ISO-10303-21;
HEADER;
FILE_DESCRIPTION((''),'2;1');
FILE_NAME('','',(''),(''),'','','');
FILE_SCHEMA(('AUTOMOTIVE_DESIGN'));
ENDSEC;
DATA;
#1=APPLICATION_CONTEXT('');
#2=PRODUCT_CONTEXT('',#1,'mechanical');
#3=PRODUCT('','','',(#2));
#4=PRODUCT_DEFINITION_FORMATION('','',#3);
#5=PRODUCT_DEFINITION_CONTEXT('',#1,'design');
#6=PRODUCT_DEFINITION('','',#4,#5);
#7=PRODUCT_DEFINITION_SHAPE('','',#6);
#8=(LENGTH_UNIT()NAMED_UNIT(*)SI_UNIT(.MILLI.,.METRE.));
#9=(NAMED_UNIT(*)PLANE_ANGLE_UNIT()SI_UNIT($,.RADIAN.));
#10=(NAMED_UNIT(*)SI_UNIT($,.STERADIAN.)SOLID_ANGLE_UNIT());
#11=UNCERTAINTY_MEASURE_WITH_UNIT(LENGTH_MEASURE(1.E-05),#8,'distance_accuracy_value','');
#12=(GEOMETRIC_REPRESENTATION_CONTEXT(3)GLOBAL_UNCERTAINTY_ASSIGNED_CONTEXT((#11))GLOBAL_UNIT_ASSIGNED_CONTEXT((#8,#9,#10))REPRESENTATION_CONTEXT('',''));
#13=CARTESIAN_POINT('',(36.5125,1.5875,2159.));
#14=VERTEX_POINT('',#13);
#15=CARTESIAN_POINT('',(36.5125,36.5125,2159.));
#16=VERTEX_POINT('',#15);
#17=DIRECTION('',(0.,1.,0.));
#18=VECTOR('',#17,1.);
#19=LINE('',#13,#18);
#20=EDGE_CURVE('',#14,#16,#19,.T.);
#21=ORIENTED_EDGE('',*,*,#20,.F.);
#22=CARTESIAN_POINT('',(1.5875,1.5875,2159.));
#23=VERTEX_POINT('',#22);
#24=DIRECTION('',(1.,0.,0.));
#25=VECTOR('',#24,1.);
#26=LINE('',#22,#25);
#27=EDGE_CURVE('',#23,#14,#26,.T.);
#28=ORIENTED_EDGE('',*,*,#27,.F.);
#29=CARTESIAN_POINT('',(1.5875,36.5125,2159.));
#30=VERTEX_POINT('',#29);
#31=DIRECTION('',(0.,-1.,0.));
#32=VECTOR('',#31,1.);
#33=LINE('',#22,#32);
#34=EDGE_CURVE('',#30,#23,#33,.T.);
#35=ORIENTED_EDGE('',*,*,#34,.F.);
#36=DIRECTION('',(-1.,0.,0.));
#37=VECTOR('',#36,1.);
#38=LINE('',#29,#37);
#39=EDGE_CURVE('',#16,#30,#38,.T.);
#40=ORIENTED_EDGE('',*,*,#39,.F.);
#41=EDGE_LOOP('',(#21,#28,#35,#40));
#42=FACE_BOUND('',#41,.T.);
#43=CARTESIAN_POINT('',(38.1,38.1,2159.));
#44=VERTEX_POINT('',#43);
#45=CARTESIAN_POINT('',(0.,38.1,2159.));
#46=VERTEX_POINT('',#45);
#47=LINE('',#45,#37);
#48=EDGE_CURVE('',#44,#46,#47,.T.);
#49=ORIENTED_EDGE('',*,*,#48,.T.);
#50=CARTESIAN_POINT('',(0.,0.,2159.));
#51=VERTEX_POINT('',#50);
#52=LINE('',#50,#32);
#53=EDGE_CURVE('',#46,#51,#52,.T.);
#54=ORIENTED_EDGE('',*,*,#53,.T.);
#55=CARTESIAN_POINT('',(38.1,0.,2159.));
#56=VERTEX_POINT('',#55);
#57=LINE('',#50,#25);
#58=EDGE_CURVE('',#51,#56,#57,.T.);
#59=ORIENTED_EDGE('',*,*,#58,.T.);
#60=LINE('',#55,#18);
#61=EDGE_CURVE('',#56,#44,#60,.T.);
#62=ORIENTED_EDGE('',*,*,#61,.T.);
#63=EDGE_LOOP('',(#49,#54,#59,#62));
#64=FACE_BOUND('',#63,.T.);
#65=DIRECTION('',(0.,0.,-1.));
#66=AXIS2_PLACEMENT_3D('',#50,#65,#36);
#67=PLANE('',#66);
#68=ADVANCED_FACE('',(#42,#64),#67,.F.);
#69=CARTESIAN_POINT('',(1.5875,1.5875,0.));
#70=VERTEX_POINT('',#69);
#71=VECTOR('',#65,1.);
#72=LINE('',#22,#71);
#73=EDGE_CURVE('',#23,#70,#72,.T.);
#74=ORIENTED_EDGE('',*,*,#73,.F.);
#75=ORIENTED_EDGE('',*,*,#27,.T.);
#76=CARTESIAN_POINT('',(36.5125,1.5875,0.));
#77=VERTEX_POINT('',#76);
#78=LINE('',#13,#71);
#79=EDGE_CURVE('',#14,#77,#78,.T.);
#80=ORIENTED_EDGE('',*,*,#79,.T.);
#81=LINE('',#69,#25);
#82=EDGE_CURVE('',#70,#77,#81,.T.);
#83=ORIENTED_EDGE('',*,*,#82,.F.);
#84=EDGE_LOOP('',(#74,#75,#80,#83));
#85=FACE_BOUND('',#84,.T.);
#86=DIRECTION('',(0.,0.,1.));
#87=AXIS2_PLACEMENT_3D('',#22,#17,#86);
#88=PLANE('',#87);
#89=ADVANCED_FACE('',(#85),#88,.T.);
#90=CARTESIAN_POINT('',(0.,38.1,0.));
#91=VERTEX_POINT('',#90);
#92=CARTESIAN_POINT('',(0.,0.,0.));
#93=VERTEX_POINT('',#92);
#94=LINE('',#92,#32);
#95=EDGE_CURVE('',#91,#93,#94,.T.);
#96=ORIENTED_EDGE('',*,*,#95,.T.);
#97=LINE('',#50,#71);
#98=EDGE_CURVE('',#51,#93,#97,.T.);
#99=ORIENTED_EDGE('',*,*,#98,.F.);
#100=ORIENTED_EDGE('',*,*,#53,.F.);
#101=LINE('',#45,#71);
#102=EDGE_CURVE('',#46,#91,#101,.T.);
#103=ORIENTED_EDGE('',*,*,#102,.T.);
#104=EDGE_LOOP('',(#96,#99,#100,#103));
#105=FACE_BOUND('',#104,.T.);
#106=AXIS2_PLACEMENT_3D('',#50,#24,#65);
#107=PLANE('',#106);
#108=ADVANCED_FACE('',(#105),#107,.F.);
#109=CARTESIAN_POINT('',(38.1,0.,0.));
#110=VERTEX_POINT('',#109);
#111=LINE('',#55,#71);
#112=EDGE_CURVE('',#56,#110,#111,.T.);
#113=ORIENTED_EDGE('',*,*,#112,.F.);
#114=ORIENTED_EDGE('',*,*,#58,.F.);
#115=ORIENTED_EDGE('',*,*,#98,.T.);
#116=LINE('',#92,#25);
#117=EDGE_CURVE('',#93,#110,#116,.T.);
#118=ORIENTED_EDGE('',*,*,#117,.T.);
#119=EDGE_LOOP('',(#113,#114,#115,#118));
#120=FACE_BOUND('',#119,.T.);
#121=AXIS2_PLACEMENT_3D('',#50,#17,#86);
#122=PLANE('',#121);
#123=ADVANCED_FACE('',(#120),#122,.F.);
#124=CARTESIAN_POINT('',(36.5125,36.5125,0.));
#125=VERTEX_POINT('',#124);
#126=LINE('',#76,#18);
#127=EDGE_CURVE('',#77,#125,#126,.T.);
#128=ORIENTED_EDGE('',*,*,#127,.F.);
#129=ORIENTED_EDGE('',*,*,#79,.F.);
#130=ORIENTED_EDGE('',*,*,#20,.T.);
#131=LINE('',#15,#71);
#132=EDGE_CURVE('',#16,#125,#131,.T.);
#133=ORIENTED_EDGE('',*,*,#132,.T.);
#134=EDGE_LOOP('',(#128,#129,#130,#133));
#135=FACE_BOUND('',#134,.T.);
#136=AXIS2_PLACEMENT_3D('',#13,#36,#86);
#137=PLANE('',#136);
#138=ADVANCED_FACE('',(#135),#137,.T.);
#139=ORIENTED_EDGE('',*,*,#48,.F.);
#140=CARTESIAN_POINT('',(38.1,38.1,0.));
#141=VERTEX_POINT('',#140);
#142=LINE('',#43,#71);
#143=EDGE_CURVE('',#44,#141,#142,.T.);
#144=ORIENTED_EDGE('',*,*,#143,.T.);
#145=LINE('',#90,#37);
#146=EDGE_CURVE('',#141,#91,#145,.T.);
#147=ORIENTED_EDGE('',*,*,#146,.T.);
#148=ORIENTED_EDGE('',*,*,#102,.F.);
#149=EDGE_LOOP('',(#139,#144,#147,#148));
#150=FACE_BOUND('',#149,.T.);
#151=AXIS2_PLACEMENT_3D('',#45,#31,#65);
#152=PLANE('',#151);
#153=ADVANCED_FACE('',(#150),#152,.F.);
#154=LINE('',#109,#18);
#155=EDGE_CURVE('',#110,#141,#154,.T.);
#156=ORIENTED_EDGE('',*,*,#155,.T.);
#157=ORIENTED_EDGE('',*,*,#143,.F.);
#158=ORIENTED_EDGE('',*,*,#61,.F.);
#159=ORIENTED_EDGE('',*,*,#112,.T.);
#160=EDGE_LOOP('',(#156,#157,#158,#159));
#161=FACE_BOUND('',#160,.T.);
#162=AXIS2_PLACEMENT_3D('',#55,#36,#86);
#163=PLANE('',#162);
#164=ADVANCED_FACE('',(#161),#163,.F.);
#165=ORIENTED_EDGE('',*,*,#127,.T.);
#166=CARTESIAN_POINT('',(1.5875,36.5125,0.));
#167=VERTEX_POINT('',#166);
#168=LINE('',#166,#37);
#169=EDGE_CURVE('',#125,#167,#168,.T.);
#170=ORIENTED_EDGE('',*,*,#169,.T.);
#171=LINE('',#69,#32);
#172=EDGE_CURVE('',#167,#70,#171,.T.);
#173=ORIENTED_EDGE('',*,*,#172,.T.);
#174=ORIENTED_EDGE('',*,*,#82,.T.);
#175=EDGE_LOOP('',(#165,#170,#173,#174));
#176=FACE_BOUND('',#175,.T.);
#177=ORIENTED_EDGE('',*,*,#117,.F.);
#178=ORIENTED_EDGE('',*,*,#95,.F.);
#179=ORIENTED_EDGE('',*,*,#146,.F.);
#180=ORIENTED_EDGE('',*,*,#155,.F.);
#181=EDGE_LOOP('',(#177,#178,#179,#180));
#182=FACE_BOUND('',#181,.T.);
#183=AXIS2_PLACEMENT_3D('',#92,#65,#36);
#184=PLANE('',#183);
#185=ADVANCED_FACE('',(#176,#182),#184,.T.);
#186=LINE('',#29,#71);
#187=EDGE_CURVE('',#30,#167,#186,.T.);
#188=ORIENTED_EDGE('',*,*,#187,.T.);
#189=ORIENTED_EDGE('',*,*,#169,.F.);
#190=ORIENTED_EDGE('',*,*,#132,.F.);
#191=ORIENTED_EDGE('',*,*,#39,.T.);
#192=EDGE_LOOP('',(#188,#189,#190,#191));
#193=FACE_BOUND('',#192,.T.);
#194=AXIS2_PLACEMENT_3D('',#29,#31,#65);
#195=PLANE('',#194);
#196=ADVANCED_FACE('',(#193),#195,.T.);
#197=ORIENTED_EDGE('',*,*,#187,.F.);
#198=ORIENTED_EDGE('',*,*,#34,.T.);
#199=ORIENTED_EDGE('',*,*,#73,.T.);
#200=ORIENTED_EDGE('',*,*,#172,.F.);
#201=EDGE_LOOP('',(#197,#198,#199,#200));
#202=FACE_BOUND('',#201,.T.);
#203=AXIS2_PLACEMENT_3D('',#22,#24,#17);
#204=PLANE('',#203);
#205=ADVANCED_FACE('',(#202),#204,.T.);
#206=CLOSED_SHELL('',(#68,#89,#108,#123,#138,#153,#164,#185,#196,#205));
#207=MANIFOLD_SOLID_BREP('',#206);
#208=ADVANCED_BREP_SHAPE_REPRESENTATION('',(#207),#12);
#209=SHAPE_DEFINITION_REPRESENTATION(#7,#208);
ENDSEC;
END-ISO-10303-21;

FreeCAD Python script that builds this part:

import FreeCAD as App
import Part
import Sketcher
from FreeCAD import Vector
Q = App.Units.Quantity

doc = App.newDocument("Part")
body = doc.addObject("PartDesign::Body", "Body")

# Sketch on XY plane
sketch1 = body.newObject("Sketcher::SketchObject", "Sketch")
sketch1.AttachmentSupport = (doc.getObject("XY_Plane"), [""])
sketch1.MapMode = "FlatFace"
sketch1.addGeometry(Part.LineSegment(Vector(0, 38.1, 0), Vector(0, 0, 0)), False)
sketch1.addGeometry(Part.LineSegment(Vector(0, 0, 0), Vector(38.1, 0, 0)), False)
sketch1.addGeometry(Part.LineSegment(Vector(38.1, 0, 0), Vector(38.1, 38.1, 0)), False)
sketch1.addGeometry(Part.LineSegment(Vector(38.1, 38.1, 0), Vector(0, 38.1, 0)), False)
sketch1.addGeometry(Part.LineSegment(Vector(36.5125, 1.5875, 0), Vector(1.5875, 1.5875, 0)), False)
sketch1.addGeometry(Part.LineSegment(Vector(1.5875, 1.5875, 0), Vector(1.5875, 36.5125, 0)), False)
sketch1.addGeometry(Part.LineSegment(Vector(1.5875, 36.5125, 0), Vector(36.5125, 36.5125, 0)), False)
sketch1.addGeometry(Part.LineSegment(Vector(36.5125, 36.5125, 0), Vector(36.5125, 1.5875, 0)), False)
sketch1.addConstraint(Sketcher.Constraint("Coincident", 0, 2, 1, 1))
sketch1.addConstraint(Sketcher.Constraint("Coincident", 1, 2, 2, 1))
sketch1.addConstraint(Sketcher.Constraint("Coincident", 2, 2, 3, 1))
sketch1.addConstraint(Sketcher.Constraint("Coincident", 3, 2, 0, 1))
sketch1.addConstraint(Sketcher.Constraint("Coincident", 4, 2, 5, 1))
sketch1.addConstraint(Sketcher.Constraint("Coincident", 5, 2, 6, 1))
sketch1.addConstraint(Sketcher.Constraint("Coincident", 6, 2, 7, 1))
sketch1.addConstraint(Sketcher.Constraint("Coincident", 7, 2, 4, 1))
sketch1.addConstraint(Sketcher.Constraint("Vertical", 0))
sketch1.addConstraint(Sketcher.Constraint("Horizontal", 1))
sketch1.addConstraint(Sketcher.Constraint("Vertical", 2))
sketch1.addConstraint(Sketcher.Constraint("Horizontal", 3))
sketch1.addConstraint(Sketcher.Constraint("Horizontal", 4))
sketch1.addConstraint(Sketcher.Constraint("Vertical", 5))
sketch1.addConstraint(Sketcher.Constraint("Horizontal", 6))
sketch1.addConstraint(Sketcher.Constraint("Vertical", 7))
sketch1.addConstraint(Sketcher.Constraint("Coincident", 0, 2, -1, 1))
sketch1.addConstraint(Sketcher.Constraint("Equal", 3, 0))
sketch1.addConstraint(Sketcher.Constraint("Equal", 6, 5))
sketch1.addConstraint(Sketcher.Constraint("DistanceX", 1, 1, 1, 2, Q("1.5 in")))
sketch1.addConstraint(Sketcher.Constraint("DistanceX", 4, 2, 4, 1, Q("1.375 in")))
sketch1.addConstraint(Sketcher.Constraint("DistanceX", -1, 1, 4, 2, Q("0.0625 in")))
sketch1.addConstraint(Sketcher.Constraint("DistanceY", -1, 1, 4, 2, Q("0.0625 in")))
pad1 = body.newObject("PartDesign::Pad", "Pad")
pad1.Profile = sketch1
pad1.Length = Q("85 in")

doc.recompute()
